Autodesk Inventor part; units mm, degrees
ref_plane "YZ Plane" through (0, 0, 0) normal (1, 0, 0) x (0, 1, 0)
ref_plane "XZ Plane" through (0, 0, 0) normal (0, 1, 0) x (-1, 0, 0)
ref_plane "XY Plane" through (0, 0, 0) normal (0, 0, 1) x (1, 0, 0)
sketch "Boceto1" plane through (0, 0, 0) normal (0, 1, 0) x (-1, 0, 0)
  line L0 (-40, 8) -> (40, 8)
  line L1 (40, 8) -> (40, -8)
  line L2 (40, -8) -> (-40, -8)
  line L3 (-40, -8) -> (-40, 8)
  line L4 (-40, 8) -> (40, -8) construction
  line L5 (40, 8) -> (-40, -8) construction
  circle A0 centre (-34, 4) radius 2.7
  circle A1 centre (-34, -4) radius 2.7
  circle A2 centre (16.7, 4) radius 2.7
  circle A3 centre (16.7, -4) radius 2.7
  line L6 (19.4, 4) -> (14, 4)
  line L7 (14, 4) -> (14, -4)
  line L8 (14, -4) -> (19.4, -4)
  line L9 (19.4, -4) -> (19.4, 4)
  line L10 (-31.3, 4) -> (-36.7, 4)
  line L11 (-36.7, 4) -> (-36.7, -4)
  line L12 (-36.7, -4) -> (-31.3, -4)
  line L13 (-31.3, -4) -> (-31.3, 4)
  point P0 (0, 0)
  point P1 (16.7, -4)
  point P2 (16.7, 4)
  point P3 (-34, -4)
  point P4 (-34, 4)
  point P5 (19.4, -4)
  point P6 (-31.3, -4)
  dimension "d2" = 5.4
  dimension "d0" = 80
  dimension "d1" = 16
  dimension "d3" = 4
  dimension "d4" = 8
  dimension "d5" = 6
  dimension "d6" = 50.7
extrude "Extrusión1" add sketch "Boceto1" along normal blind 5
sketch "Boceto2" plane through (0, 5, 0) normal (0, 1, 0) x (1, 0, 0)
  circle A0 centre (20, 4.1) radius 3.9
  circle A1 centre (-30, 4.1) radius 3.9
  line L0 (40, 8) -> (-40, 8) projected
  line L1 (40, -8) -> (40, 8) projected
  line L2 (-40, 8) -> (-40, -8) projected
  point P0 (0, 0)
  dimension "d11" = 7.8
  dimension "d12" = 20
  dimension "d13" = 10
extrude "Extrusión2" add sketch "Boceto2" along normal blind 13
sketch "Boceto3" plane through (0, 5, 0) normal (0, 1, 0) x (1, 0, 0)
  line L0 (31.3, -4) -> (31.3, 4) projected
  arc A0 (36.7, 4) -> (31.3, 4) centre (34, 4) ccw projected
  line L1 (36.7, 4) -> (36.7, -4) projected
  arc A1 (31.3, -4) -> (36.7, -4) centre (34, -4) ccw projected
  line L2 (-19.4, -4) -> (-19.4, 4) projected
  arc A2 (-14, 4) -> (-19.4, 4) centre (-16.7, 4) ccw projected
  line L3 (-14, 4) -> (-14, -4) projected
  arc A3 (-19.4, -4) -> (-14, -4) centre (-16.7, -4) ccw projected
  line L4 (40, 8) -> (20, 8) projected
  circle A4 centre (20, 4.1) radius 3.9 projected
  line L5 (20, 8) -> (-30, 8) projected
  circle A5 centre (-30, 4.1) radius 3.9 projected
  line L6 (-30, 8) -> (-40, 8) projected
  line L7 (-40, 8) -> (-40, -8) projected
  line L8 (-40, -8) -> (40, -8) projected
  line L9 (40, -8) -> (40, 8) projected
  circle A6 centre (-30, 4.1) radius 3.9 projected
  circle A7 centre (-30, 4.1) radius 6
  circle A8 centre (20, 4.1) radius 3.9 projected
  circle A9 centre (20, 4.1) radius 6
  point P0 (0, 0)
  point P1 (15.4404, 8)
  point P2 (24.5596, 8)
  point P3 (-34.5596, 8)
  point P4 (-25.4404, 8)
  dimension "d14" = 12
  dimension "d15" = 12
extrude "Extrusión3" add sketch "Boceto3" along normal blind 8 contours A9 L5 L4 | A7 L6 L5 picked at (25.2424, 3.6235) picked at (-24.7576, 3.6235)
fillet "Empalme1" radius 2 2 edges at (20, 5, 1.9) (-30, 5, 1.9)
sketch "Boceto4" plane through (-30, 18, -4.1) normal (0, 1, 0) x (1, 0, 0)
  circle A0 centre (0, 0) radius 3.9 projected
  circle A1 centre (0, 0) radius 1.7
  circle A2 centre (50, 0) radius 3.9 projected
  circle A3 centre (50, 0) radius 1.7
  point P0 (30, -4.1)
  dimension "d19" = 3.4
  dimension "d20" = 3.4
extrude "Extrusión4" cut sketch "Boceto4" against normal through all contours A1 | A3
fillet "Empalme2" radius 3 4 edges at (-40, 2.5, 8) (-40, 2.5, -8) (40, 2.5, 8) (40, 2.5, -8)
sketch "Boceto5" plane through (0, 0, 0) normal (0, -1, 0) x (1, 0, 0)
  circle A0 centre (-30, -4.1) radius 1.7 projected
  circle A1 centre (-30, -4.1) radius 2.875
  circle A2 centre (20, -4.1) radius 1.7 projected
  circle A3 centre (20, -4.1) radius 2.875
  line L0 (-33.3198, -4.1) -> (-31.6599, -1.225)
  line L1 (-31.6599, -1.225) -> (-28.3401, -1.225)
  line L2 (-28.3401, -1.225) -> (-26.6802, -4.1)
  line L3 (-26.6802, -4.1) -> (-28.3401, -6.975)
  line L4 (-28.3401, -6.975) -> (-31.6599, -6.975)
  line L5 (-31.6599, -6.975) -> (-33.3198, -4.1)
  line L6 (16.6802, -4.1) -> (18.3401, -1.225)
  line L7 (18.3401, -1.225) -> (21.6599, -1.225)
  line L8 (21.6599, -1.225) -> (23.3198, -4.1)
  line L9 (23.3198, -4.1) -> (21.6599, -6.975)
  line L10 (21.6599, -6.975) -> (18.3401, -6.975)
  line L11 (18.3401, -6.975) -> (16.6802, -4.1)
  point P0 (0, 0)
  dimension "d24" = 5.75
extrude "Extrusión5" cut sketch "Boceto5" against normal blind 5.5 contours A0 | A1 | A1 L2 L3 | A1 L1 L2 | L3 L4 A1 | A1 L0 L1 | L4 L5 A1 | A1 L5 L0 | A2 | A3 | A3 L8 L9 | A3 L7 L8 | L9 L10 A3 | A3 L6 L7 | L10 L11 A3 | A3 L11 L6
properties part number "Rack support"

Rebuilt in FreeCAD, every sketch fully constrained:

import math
import FreeCAD as App
import Part
import Sketcher
from FreeCAD import Vector
Q = App.Units.Quantity


def edges_at(feature, points):
    """Names of the edges that pass closest to the given points."""
    edges = feature.Shape.Edges
    near = lambda p: min(range(len(edges)), key=lambda i: edges[i].distToShape(Part.Vertex(*p))[0])
    return sorted({f"Edge{near(p) + 1}" for p in points})

doc = App.newDocument("Part")
body = doc.addObject("PartDesign::Body", "Body")

# Sketch on XZ plane
sketch1 = body.newObject("Sketcher::SketchObject", "Sketch")
sketch1.AttachmentSupport = (doc.getObject("XZ_Plane"), [""])
sketch1.MapMode = "FlatFace"
sketch1.addGeometry(Part.LineSegment(Vector(-40, 8, 0), Vector(40, 8, 0)), False)
sketch1.addGeometry(Part.LineSegment(Vector(40, 8, 0), Vector(40, -8, 0)), False)
sketch1.addGeometry(Part.LineSegment(Vector(40, -8, 0), Vector(-40, -8, 0)), False)
sketch1.addGeometry(Part.LineSegment(Vector(-40, -8, 0), Vector(-40, 8, 0)), False)
sketch1.addGeometry(Part.ArcOfCircle(Part.Circle(Vector(34, 4, 0), Vector(0, 0, 1), 2.7), math.radians(0), math.radians(180)), False)
sketch1.addGeometry(Part.LineSegment(Vector(31.3, 4, 0), Vector(31.3, -4, 0)), False)
sketch1.addGeometry(Part.ArcOfCircle(Part.Circle(Vector(34, -4, 0), Vector(0, 0, 1), 2.7), math.radians(180), math.radians(360)), False)
sketch1.addGeometry(Part.LineSegment(Vector(36.7, -4, 0), Vector(36.7, 4, 0)), False)
sketch1.addGeometry(Part.ArcOfCircle(Part.Circle(Vector(-16.7, 4, 0), Vector(0, 0, 1), 2.7), math.radians(0), math.radians(180)), False)
sketch1.addGeometry(Part.LineSegment(Vector(-19.4, 4, 0), Vector(-19.4, -4, 0)), False)
sketch1.addGeometry(Part.ArcOfCircle(Part.Circle(Vector(-16.7, -4, 0), Vector(0, 0, 1), 2.7), math.radians(180), math.radians(360)), False)
sketch1.addGeometry(Part.LineSegment(Vector(-14, -4, 0), Vector(-14, 4, 0)), False)
sketch1.addConstraint(Sketcher.Constraint("Coincident", 0, 2, 1, 1))
sketch1.addConstraint(Sketcher.Constraint("Coincident", 1, 2, 2, 1))
sketch1.addConstraint(Sketcher.Constraint("Coincident", 2, 2, 3, 1))
sketch1.addConstraint(Sketcher.Constraint("Coincident", 3, 2, 0, 1))
sketch1.addConstraint(Sketcher.Constraint("Tangent", 4, 2, 5, 1))
sketch1.addConstraint(Sketcher.Constraint("Tangent", 5, 2, 6, 1))
sketch1.addConstraint(Sketcher.Constraint("Tangent", 6, 2, 7, 1))
sketch1.addConstraint(Sketcher.Constraint("Tangent", 7, 2, 4, 1))
sketch1.addConstraint(Sketcher.Constraint("Tangent", 8, 2, 9, 1))
sketch1.addConstraint(Sketcher.Constraint("Tangent", 9, 2, 10, 1))
sketch1.addConstraint(Sketcher.Constraint("Tangent", 10, 2, 11, 1))
sketch1.addConstraint(Sketcher.Constraint("Tangent", 11, 2, 8, 1))
sketch1.addConstraint(Sketcher.Constraint("Horizontal", 0))
sketch1.addConstraint(Sketcher.Constraint("Vertical", 1))
sketch1.addConstraint(Sketcher.Constraint("Horizontal", 2))
sketch1.addConstraint(Sketcher.Constraint("Vertical", 3))
sketch1.addConstraint(Sketcher.Constraint("Vertical", 5))
sketch1.addConstraint(Sketcher.Constraint("Vertical", 7))
sketch1.addConstraint(Sketcher.Constraint("Vertical", 9))
sketch1.addConstraint(Sketcher.Constraint("Vertical", 11))
sketch1.addConstraint(Sketcher.Constraint("Equal", 6, 8))
sketch1.addConstraint(Sketcher.Constraint("Symmetric", 0, 2, 2, 2, -1, 1))
sketch1.addConstraint(Sketcher.Constraint("Horizontal", 4, 3, 8, 3))
sketch1.addConstraint(Sketcher.Constraint("Horizontal", 6, 3, 10, 3))
sketch1.addConstraint(Sketcher.Constraint("Radius", 4, Q("2.7 mm")))
sketch1.addConstraint(Sketcher.Constraint("DistanceX", 0, 1, 0, 2, Q("80 mm")))
sketch1.addConstraint(Sketcher.Constraint("DistanceY", 1, 2, 1, 1, Q("16 mm")))
sketch1.addConstraint(Sketcher.Constraint("DistanceY", 5, 2, 5, 1, Q("8 mm")))
sketch1.addConstraint(Sketcher.Constraint("DistanceY", -1, 1, 4, 3, Q("4 mm")))
sketch1.addConstraint(Sketcher.Constraint("DistanceX", 4, 3, 0, 2, Q("6 mm")))
sketch1.addConstraint(Sketcher.Constraint("DistanceX", 8, 3, 4, 3, Q("50.7 mm")))
pad1 = body.newObject("PartDesign::Pad", "Pad")
pad1.Profile = sketch1
pad1.Length = 5
pad1.Reversed = True

# Sketch on XZ plane
sketch2 = body.newObject("Sketcher::SketchObject", "Sketch001")
sketch2.AttachmentSupport = (doc.getObject("XZ_Plane"), [""])
sketch2.MapMode = "FlatFace"
sketch2.AttachmentOffset = App.Placement(Vector(0, 0, -5), App.Rotation())
sketch2.addGeometry(Part.Circle(Vector(20, -4.1, 0), Vector(0, 0, 1), 3.9), False)
sketch2.addGeometry(Part.Circle(Vector(-30, -4.1, 0), Vector(0, 0, 1), 3.9), False)
sketch2.addConstraint(Sketcher.Constraint("Equal", 0, 1))
sketch2.addConstraint(Sketcher.Constraint("Horizontal", 0, 3, 1, 3))
sketch2.addConstraint(Sketcher.Constraint("Diameter", 0, Q("7.8 mm")))
sketch2.addConstraint(Sketcher.Constraint("DistanceX", -1, 1, 0, 3, Q("20 mm")))
sketch2.addConstraint(Sketcher.Constraint("DistanceX", 1, 3, -1, 1, Q("30 mm")))
sketch2.addConstraint(Sketcher.Constraint("DistanceY", 0, 3, -1, 1, Q("4.1 mm")))
pad2 = body.newObject("PartDesign::Pad", "Pad001")
pad2.Profile = sketch2
pad2.Length = 13
pad2.Reversed = True

# Sketch on XZ plane
sketch3 = body.newObject("Sketcher::SketchObject", "Sketch002")
sketch3.AttachmentSupport = (doc.getObject("XZ_Plane"), [""])
sketch3.MapMode = "FlatFace"
sketch3.AttachmentOffset = App.Placement(Vector(0, 0, -5), App.Rotation())
sketch3.addGeometry(Part.ArcOfCircle(Part.Circle(Vector(20, -4.1, 0), Vector(0, 0, 1), 6), math.radians(-41), math.radians(221)), False)
sketch3.addGeometry(Part.LineSegment(Vector(24.6, -8, 0), Vector(20, -8, 0)), False)
sketch3.addGeometry(Part.LineSegment(Vector(20, -8, 0), Vector(15.4, -8, 0)), False)
sketch3.addGeometry(Part.Circle(Vector(20, -4.1, 0), Vector(0, 0, 1), 3.9), False)
sketch3.addGeometry(Part.ArcOfCircle(Part.Circle(Vector(-30, -4.1, 0), Vector(0, 0, 1), 6), math.radians(-41), math.radians(221)), False)
sketch3.addGeometry(Part.LineSegment(Vector(-25.4, -8, 0), Vector(-30, -8, 0)), False)
sketch3.addGeometry(Part.LineSegment(Vector(-30, -8, 0), Vector(-34.6, -8, 0)), False)
sketch3.addGeometry(Part.Circle(Vector(-30, -4.1, 0), Vector(0, 0, 1), 3.9), False)
sketch3.addConstraint(Sketcher.Constraint("Coincident", 0, 1, 1, 1))
sketch3.addConstraint(Sketcher.Constraint("Coincident", 1, 2, 2, 1))
sketch3.addConstraint(Sketcher.Constraint("Coincident", 2, 2, 0, 2))
sketch3.addConstraint(Sketcher.Constraint("Coincident", 4, 1, 5, 1))
sketch3.addConstraint(Sketcher.Constraint("Coincident", 5, 2, 6, 1))
sketch3.addConstraint(Sketcher.Constraint("Coincident", 6, 2, 4, 2))
sketch3.addConstraint(Sketcher.Constraint("Horizontal", 1))
sketch3.addConstraint(Sketcher.Constraint("Horizontal", 2))
sketch3.addConstraint(Sketcher.Constraint("Horizontal", 5))
sketch3.addConstraint(Sketcher.Constraint("Horizontal", 6))
sketch3.addConstraint(Sketcher.Constraint("Coincident", 3, 3, 0, 3))
sketch3.addConstraint(Sketcher.Constraint("Coincident", 7, 3, 4, 3))
sketch3.addConstraint(Sketcher.Constraint("Equal", 0, 4))
sketch3.addConstraint(Sketcher.Constraint("Equal", 3, 7))
sketch3.addConstraint(Sketcher.Constraint("Horizontal", 3, 3, 4, 3))
sketch3.addConstraint(Sketcher.Constraint("Horizontal", 2, 2, 4, 1))
sketch3.addConstraint(Sketcher.Constraint("Vertical", 3, 3, 1, 2))
sketch3.addConstraint(Sketcher.Constraint("Vertical", 7, 3, 5, 2))
sketch3.addConstraint(Sketcher.Constraint("Radius", 0, Q("6 mm")))
sketch3.addConstraint(Sketcher.Constraint("Diameter", 3, Q("7.8 mm")))
sketch3.addConstraint(Sketcher.Constraint("DistanceX", -1, 1, 0, 3, Q("20 mm")))
sketch3.addConstraint(Sketcher.Constraint("DistanceX", 4, 3, -1, 1, Q("30 mm")))
sketch3.addConstraint(Sketcher.Constraint("DistanceY", 0, 1, -1, 1, Q("8 mm")))
sketch3.addConstraint(Sketcher.Constraint("DistanceY", 0, 3, -1, 1, Q("4.1 mm")))
pad3 = body.newObject("PartDesign::Pad", "Pad002")
pad3.Profile = sketch3
pad3.Length = 8
pad3.Reversed = True
doc.recompute()

fillet = body.newObject("PartDesign::Fillet", "Fillet")
fillet.Base = (pad3, edges_at(pad3, [(20, 5, 1.9), (-30, 5, 1.9)]))
fillet.Radius = 2

# Sketch on XZ plane
sketch4 = body.newObject("Sketcher::SketchObject", "Sketch003")
sketch4.AttachmentSupport = (doc.getObject("XZ_Plane"), [""])
sketch4.MapMode = "FlatFace"
sketch4.AttachmentOffset = App.Placement(Vector(0, 0, -18), App.Rotation())
sketch4.addGeometry(Part.Circle(Vector(-30, -4.1, 0), Vector(0, 0, 1), 1.7), False)
sketch4.addGeometry(Part.Circle(Vector(20, -4.1, 0), Vector(0, 0, 1), 1.7), False)
sketch4.addConstraint(Sketcher.Constraint("Equal", 0, 1))
sketch4.addConstraint(Sketcher.Constraint("Horizontal", 0, 3, 1, 3))
sketch4.addConstraint(Sketcher.Constraint("Diameter", 0, Q("3.4 mm")))
sketch4.addConstraint(Sketcher.Constraint("DistanceX", 0, 3, -1, 1, Q("30 mm")))
sketch4.addConstraint(Sketcher.Constraint("DistanceX", -1, 1, 1, 3, Q("20 mm")))
sketch4.addConstraint(Sketcher.Constraint("DistanceY", 0, 3, -1, 1, Q("4.1 mm")))
pocket1 = body.newObject("PartDesign::Pocket", "Pocket")
pocket1.Profile = sketch4
pocket1.Type = "ThroughAll"
pocket1.Reversed = True
doc.recompute()

fillet2 = body.newObject("PartDesign::Fillet", "Fillet001")
fillet2.Base = (pocket1, edges_at(pocket1, [
    (-40, 2.5, 8),
    (-40, 2.5, -8),
    (40, 2.5, 8),
    (40, 2.5, -8),
]))
fillet2.Radius = 3

# Sketch on XZ plane
sketch5 = body.newObject("Sketcher::SketchObject", "Sketch004")
sketch5.AttachmentSupport = (doc.getObject("XZ_Plane"), [""])
sketch5.MapMode = "FlatFace"
sketch5.addGeometry(Part.LineSegment(Vector(-26.7, -4.1, 0), Vector(-28.3, -1.2, 0)), False)
sketch5.addGeometry(Part.LineSegment(Vector(-28.3, -1.2, 0), Vector(-31.7, -1.2, 0)), False)
sketch5.addGeometry(Part.LineSegment(Vector(-31.7, -1.2, 0), Vector(-33.3, -4.1, 0)), False)
sketch5.addGeometry(Part.LineSegment(Vector(-33.3, -4.1, 0), Vector(-31.7, -7, 0)), False)
sketch5.addGeometry(Part.LineSegment(Vector(-31.7, -7, 0), Vector(-28.3, -7, 0)), False)
sketch5.addGeometry(Part.LineSegment(Vector(-28.3, -7, 0), Vector(-26.7, -4.1, 0)), False)
sketch5.addGeometry(Part.LineSegment(Vector(23.3, -4.1, 0), Vector(21.7, -1.2, 0)), False)
sketch5.addGeometry(Part.LineSegment(Vector(21.7, -1.2, 0), Vector(18.3, -1.2, 0)), False)
sketch5.addGeometry(Part.LineSegment(Vector(18.3, -1.2, 0), Vector(16.7, -4.1, 0)), False)
sketch5.addGeometry(Part.LineSegment(Vector(16.7, -4.1, 0), Vector(18.3, -7, 0)), False)
sketch5.addGeometry(Part.LineSegment(Vector(18.3, -7, 0), Vector(21.7, -7, 0)), False)
sketch5.addGeometry(Part.LineSegment(Vector(21.7, -7, 0), Vector(23.3, -4.1, 0)), False)
sketch5.addConstraint(Sketcher.Constraint("Coincident", 0, 2, 1, 1))
sketch5.addConstraint(Sketcher.Constraint("Coincident", 1, 2, 2, 1))
sketch5.addConstraint(Sketcher.Constraint("Coincident", 2, 2, 3, 1))
sketch5.addConstraint(Sketcher.Constraint("Coincident", 3, 2, 4, 1))
sketch5.addConstraint(Sketcher.Constraint("Coincident", 4, 2, 5, 1))
sketch5.addConstraint(Sketcher.Constraint("Coincident", 5, 2, 0, 1))
sketch5.addConstraint(Sketcher.Constraint("Coincident", 6, 2, 7, 1))
sketch5.addConstraint(Sketcher.Constraint("Coincident", 7, 2, 8, 1))
sketch5.addConstraint(Sketcher.Constraint("Coincident", 8, 2, 9, 1))
sketch5.addConstraint(Sketcher.Constraint("Coincident", 9, 2, 10, 1))
sketch5.addConstraint(Sketcher.Constraint("Coincident", 10, 2, 11, 1))
sketch5.addConstraint(Sketcher.Constraint("Coincident", 11, 2, 6, 1))
sketch5.addConstraint(Sketcher.Constraint("Horizontal", 1))
sketch5.addConstraint(Sketcher.Constraint("Horizontal", 4))
sketch5.addConstraint(Sketcher.Constraint("Horizontal", 7))
sketch5.addConstraint(Sketcher.Constraint("Horizontal", 10))
sketch5.addConstraint(Sketcher.Constraint("Parallel", 0, 3))
sketch5.addConstraint(Sketcher.Constraint("Parallel", 2, 5))
sketch5.addConstraint(Sketcher.Constraint("Parallel", 3, 6))
sketch5.addConstraint(Sketcher.Constraint("Parallel", 5, 8))
sketch5.addConstraint(Sketcher.Constraint("Parallel", 6, 9))
sketch5.addConstraint(Sketcher.Constraint("Parallel", 8, 11))
sketch5.addConstraint(Sketcher.Constraint("Horizontal", 2, 2, 5, 2))
sketch5.addConstraint(Sketcher.Constraint("Horizontal", 1, 2, 6, 2))
sketch5.addConstraint(Sketcher.Constraint("Horizontal", 5, 2, 8, 2))
sketch5.addConstraint(Sketcher.Constraint("Horizontal", 4, 2, 9, 2))
sketch5.addConstraint(Sketcher.Constraint("Horizontal", 8, 2, 11, 2))
sketch5.addConstraint(Sketcher.Constraint("Vertical", 1, 2, 3, 2))
sketch5.addConstraint(Sketcher.Constraint("Vertical", 0, 2, 4, 2))
sketch5.addConstraint(Sketcher.Constraint("Equal", 4, 7))
sketch5.addConstraint(Sketcher.Constraint("Angle", 0, Q("120.0003 deg")))
sketch5.addConstraint(Sketcher.Constraint("DistanceY", 3, 2, 1, 2, Q("5.75 mm")))
sketch5.addConstraint(Sketcher.Constraint("DistanceX", 0, 2, 6, 2, Q("50 mm")))
sketch5.addConstraint(Sketcher.Constraint("DistanceY", 2, 2, -1, 1, Q("4.1 mm")))
sketch5.addConstraint(Sketcher.Constraint("DistanceX", 0, 2, -1, 1, Q("28.34 mm")))
sketch5.addConstraint(Sketcher.Constraint("DistanceX", 1, 2, -1, 1, Q("31.66 mm")))
pocket2 = body.newObject("PartDesign::Pocket", "Pocket001")
pocket2.Profile = sketch5
pocket2.Length = 5.5

doc.recompute()
